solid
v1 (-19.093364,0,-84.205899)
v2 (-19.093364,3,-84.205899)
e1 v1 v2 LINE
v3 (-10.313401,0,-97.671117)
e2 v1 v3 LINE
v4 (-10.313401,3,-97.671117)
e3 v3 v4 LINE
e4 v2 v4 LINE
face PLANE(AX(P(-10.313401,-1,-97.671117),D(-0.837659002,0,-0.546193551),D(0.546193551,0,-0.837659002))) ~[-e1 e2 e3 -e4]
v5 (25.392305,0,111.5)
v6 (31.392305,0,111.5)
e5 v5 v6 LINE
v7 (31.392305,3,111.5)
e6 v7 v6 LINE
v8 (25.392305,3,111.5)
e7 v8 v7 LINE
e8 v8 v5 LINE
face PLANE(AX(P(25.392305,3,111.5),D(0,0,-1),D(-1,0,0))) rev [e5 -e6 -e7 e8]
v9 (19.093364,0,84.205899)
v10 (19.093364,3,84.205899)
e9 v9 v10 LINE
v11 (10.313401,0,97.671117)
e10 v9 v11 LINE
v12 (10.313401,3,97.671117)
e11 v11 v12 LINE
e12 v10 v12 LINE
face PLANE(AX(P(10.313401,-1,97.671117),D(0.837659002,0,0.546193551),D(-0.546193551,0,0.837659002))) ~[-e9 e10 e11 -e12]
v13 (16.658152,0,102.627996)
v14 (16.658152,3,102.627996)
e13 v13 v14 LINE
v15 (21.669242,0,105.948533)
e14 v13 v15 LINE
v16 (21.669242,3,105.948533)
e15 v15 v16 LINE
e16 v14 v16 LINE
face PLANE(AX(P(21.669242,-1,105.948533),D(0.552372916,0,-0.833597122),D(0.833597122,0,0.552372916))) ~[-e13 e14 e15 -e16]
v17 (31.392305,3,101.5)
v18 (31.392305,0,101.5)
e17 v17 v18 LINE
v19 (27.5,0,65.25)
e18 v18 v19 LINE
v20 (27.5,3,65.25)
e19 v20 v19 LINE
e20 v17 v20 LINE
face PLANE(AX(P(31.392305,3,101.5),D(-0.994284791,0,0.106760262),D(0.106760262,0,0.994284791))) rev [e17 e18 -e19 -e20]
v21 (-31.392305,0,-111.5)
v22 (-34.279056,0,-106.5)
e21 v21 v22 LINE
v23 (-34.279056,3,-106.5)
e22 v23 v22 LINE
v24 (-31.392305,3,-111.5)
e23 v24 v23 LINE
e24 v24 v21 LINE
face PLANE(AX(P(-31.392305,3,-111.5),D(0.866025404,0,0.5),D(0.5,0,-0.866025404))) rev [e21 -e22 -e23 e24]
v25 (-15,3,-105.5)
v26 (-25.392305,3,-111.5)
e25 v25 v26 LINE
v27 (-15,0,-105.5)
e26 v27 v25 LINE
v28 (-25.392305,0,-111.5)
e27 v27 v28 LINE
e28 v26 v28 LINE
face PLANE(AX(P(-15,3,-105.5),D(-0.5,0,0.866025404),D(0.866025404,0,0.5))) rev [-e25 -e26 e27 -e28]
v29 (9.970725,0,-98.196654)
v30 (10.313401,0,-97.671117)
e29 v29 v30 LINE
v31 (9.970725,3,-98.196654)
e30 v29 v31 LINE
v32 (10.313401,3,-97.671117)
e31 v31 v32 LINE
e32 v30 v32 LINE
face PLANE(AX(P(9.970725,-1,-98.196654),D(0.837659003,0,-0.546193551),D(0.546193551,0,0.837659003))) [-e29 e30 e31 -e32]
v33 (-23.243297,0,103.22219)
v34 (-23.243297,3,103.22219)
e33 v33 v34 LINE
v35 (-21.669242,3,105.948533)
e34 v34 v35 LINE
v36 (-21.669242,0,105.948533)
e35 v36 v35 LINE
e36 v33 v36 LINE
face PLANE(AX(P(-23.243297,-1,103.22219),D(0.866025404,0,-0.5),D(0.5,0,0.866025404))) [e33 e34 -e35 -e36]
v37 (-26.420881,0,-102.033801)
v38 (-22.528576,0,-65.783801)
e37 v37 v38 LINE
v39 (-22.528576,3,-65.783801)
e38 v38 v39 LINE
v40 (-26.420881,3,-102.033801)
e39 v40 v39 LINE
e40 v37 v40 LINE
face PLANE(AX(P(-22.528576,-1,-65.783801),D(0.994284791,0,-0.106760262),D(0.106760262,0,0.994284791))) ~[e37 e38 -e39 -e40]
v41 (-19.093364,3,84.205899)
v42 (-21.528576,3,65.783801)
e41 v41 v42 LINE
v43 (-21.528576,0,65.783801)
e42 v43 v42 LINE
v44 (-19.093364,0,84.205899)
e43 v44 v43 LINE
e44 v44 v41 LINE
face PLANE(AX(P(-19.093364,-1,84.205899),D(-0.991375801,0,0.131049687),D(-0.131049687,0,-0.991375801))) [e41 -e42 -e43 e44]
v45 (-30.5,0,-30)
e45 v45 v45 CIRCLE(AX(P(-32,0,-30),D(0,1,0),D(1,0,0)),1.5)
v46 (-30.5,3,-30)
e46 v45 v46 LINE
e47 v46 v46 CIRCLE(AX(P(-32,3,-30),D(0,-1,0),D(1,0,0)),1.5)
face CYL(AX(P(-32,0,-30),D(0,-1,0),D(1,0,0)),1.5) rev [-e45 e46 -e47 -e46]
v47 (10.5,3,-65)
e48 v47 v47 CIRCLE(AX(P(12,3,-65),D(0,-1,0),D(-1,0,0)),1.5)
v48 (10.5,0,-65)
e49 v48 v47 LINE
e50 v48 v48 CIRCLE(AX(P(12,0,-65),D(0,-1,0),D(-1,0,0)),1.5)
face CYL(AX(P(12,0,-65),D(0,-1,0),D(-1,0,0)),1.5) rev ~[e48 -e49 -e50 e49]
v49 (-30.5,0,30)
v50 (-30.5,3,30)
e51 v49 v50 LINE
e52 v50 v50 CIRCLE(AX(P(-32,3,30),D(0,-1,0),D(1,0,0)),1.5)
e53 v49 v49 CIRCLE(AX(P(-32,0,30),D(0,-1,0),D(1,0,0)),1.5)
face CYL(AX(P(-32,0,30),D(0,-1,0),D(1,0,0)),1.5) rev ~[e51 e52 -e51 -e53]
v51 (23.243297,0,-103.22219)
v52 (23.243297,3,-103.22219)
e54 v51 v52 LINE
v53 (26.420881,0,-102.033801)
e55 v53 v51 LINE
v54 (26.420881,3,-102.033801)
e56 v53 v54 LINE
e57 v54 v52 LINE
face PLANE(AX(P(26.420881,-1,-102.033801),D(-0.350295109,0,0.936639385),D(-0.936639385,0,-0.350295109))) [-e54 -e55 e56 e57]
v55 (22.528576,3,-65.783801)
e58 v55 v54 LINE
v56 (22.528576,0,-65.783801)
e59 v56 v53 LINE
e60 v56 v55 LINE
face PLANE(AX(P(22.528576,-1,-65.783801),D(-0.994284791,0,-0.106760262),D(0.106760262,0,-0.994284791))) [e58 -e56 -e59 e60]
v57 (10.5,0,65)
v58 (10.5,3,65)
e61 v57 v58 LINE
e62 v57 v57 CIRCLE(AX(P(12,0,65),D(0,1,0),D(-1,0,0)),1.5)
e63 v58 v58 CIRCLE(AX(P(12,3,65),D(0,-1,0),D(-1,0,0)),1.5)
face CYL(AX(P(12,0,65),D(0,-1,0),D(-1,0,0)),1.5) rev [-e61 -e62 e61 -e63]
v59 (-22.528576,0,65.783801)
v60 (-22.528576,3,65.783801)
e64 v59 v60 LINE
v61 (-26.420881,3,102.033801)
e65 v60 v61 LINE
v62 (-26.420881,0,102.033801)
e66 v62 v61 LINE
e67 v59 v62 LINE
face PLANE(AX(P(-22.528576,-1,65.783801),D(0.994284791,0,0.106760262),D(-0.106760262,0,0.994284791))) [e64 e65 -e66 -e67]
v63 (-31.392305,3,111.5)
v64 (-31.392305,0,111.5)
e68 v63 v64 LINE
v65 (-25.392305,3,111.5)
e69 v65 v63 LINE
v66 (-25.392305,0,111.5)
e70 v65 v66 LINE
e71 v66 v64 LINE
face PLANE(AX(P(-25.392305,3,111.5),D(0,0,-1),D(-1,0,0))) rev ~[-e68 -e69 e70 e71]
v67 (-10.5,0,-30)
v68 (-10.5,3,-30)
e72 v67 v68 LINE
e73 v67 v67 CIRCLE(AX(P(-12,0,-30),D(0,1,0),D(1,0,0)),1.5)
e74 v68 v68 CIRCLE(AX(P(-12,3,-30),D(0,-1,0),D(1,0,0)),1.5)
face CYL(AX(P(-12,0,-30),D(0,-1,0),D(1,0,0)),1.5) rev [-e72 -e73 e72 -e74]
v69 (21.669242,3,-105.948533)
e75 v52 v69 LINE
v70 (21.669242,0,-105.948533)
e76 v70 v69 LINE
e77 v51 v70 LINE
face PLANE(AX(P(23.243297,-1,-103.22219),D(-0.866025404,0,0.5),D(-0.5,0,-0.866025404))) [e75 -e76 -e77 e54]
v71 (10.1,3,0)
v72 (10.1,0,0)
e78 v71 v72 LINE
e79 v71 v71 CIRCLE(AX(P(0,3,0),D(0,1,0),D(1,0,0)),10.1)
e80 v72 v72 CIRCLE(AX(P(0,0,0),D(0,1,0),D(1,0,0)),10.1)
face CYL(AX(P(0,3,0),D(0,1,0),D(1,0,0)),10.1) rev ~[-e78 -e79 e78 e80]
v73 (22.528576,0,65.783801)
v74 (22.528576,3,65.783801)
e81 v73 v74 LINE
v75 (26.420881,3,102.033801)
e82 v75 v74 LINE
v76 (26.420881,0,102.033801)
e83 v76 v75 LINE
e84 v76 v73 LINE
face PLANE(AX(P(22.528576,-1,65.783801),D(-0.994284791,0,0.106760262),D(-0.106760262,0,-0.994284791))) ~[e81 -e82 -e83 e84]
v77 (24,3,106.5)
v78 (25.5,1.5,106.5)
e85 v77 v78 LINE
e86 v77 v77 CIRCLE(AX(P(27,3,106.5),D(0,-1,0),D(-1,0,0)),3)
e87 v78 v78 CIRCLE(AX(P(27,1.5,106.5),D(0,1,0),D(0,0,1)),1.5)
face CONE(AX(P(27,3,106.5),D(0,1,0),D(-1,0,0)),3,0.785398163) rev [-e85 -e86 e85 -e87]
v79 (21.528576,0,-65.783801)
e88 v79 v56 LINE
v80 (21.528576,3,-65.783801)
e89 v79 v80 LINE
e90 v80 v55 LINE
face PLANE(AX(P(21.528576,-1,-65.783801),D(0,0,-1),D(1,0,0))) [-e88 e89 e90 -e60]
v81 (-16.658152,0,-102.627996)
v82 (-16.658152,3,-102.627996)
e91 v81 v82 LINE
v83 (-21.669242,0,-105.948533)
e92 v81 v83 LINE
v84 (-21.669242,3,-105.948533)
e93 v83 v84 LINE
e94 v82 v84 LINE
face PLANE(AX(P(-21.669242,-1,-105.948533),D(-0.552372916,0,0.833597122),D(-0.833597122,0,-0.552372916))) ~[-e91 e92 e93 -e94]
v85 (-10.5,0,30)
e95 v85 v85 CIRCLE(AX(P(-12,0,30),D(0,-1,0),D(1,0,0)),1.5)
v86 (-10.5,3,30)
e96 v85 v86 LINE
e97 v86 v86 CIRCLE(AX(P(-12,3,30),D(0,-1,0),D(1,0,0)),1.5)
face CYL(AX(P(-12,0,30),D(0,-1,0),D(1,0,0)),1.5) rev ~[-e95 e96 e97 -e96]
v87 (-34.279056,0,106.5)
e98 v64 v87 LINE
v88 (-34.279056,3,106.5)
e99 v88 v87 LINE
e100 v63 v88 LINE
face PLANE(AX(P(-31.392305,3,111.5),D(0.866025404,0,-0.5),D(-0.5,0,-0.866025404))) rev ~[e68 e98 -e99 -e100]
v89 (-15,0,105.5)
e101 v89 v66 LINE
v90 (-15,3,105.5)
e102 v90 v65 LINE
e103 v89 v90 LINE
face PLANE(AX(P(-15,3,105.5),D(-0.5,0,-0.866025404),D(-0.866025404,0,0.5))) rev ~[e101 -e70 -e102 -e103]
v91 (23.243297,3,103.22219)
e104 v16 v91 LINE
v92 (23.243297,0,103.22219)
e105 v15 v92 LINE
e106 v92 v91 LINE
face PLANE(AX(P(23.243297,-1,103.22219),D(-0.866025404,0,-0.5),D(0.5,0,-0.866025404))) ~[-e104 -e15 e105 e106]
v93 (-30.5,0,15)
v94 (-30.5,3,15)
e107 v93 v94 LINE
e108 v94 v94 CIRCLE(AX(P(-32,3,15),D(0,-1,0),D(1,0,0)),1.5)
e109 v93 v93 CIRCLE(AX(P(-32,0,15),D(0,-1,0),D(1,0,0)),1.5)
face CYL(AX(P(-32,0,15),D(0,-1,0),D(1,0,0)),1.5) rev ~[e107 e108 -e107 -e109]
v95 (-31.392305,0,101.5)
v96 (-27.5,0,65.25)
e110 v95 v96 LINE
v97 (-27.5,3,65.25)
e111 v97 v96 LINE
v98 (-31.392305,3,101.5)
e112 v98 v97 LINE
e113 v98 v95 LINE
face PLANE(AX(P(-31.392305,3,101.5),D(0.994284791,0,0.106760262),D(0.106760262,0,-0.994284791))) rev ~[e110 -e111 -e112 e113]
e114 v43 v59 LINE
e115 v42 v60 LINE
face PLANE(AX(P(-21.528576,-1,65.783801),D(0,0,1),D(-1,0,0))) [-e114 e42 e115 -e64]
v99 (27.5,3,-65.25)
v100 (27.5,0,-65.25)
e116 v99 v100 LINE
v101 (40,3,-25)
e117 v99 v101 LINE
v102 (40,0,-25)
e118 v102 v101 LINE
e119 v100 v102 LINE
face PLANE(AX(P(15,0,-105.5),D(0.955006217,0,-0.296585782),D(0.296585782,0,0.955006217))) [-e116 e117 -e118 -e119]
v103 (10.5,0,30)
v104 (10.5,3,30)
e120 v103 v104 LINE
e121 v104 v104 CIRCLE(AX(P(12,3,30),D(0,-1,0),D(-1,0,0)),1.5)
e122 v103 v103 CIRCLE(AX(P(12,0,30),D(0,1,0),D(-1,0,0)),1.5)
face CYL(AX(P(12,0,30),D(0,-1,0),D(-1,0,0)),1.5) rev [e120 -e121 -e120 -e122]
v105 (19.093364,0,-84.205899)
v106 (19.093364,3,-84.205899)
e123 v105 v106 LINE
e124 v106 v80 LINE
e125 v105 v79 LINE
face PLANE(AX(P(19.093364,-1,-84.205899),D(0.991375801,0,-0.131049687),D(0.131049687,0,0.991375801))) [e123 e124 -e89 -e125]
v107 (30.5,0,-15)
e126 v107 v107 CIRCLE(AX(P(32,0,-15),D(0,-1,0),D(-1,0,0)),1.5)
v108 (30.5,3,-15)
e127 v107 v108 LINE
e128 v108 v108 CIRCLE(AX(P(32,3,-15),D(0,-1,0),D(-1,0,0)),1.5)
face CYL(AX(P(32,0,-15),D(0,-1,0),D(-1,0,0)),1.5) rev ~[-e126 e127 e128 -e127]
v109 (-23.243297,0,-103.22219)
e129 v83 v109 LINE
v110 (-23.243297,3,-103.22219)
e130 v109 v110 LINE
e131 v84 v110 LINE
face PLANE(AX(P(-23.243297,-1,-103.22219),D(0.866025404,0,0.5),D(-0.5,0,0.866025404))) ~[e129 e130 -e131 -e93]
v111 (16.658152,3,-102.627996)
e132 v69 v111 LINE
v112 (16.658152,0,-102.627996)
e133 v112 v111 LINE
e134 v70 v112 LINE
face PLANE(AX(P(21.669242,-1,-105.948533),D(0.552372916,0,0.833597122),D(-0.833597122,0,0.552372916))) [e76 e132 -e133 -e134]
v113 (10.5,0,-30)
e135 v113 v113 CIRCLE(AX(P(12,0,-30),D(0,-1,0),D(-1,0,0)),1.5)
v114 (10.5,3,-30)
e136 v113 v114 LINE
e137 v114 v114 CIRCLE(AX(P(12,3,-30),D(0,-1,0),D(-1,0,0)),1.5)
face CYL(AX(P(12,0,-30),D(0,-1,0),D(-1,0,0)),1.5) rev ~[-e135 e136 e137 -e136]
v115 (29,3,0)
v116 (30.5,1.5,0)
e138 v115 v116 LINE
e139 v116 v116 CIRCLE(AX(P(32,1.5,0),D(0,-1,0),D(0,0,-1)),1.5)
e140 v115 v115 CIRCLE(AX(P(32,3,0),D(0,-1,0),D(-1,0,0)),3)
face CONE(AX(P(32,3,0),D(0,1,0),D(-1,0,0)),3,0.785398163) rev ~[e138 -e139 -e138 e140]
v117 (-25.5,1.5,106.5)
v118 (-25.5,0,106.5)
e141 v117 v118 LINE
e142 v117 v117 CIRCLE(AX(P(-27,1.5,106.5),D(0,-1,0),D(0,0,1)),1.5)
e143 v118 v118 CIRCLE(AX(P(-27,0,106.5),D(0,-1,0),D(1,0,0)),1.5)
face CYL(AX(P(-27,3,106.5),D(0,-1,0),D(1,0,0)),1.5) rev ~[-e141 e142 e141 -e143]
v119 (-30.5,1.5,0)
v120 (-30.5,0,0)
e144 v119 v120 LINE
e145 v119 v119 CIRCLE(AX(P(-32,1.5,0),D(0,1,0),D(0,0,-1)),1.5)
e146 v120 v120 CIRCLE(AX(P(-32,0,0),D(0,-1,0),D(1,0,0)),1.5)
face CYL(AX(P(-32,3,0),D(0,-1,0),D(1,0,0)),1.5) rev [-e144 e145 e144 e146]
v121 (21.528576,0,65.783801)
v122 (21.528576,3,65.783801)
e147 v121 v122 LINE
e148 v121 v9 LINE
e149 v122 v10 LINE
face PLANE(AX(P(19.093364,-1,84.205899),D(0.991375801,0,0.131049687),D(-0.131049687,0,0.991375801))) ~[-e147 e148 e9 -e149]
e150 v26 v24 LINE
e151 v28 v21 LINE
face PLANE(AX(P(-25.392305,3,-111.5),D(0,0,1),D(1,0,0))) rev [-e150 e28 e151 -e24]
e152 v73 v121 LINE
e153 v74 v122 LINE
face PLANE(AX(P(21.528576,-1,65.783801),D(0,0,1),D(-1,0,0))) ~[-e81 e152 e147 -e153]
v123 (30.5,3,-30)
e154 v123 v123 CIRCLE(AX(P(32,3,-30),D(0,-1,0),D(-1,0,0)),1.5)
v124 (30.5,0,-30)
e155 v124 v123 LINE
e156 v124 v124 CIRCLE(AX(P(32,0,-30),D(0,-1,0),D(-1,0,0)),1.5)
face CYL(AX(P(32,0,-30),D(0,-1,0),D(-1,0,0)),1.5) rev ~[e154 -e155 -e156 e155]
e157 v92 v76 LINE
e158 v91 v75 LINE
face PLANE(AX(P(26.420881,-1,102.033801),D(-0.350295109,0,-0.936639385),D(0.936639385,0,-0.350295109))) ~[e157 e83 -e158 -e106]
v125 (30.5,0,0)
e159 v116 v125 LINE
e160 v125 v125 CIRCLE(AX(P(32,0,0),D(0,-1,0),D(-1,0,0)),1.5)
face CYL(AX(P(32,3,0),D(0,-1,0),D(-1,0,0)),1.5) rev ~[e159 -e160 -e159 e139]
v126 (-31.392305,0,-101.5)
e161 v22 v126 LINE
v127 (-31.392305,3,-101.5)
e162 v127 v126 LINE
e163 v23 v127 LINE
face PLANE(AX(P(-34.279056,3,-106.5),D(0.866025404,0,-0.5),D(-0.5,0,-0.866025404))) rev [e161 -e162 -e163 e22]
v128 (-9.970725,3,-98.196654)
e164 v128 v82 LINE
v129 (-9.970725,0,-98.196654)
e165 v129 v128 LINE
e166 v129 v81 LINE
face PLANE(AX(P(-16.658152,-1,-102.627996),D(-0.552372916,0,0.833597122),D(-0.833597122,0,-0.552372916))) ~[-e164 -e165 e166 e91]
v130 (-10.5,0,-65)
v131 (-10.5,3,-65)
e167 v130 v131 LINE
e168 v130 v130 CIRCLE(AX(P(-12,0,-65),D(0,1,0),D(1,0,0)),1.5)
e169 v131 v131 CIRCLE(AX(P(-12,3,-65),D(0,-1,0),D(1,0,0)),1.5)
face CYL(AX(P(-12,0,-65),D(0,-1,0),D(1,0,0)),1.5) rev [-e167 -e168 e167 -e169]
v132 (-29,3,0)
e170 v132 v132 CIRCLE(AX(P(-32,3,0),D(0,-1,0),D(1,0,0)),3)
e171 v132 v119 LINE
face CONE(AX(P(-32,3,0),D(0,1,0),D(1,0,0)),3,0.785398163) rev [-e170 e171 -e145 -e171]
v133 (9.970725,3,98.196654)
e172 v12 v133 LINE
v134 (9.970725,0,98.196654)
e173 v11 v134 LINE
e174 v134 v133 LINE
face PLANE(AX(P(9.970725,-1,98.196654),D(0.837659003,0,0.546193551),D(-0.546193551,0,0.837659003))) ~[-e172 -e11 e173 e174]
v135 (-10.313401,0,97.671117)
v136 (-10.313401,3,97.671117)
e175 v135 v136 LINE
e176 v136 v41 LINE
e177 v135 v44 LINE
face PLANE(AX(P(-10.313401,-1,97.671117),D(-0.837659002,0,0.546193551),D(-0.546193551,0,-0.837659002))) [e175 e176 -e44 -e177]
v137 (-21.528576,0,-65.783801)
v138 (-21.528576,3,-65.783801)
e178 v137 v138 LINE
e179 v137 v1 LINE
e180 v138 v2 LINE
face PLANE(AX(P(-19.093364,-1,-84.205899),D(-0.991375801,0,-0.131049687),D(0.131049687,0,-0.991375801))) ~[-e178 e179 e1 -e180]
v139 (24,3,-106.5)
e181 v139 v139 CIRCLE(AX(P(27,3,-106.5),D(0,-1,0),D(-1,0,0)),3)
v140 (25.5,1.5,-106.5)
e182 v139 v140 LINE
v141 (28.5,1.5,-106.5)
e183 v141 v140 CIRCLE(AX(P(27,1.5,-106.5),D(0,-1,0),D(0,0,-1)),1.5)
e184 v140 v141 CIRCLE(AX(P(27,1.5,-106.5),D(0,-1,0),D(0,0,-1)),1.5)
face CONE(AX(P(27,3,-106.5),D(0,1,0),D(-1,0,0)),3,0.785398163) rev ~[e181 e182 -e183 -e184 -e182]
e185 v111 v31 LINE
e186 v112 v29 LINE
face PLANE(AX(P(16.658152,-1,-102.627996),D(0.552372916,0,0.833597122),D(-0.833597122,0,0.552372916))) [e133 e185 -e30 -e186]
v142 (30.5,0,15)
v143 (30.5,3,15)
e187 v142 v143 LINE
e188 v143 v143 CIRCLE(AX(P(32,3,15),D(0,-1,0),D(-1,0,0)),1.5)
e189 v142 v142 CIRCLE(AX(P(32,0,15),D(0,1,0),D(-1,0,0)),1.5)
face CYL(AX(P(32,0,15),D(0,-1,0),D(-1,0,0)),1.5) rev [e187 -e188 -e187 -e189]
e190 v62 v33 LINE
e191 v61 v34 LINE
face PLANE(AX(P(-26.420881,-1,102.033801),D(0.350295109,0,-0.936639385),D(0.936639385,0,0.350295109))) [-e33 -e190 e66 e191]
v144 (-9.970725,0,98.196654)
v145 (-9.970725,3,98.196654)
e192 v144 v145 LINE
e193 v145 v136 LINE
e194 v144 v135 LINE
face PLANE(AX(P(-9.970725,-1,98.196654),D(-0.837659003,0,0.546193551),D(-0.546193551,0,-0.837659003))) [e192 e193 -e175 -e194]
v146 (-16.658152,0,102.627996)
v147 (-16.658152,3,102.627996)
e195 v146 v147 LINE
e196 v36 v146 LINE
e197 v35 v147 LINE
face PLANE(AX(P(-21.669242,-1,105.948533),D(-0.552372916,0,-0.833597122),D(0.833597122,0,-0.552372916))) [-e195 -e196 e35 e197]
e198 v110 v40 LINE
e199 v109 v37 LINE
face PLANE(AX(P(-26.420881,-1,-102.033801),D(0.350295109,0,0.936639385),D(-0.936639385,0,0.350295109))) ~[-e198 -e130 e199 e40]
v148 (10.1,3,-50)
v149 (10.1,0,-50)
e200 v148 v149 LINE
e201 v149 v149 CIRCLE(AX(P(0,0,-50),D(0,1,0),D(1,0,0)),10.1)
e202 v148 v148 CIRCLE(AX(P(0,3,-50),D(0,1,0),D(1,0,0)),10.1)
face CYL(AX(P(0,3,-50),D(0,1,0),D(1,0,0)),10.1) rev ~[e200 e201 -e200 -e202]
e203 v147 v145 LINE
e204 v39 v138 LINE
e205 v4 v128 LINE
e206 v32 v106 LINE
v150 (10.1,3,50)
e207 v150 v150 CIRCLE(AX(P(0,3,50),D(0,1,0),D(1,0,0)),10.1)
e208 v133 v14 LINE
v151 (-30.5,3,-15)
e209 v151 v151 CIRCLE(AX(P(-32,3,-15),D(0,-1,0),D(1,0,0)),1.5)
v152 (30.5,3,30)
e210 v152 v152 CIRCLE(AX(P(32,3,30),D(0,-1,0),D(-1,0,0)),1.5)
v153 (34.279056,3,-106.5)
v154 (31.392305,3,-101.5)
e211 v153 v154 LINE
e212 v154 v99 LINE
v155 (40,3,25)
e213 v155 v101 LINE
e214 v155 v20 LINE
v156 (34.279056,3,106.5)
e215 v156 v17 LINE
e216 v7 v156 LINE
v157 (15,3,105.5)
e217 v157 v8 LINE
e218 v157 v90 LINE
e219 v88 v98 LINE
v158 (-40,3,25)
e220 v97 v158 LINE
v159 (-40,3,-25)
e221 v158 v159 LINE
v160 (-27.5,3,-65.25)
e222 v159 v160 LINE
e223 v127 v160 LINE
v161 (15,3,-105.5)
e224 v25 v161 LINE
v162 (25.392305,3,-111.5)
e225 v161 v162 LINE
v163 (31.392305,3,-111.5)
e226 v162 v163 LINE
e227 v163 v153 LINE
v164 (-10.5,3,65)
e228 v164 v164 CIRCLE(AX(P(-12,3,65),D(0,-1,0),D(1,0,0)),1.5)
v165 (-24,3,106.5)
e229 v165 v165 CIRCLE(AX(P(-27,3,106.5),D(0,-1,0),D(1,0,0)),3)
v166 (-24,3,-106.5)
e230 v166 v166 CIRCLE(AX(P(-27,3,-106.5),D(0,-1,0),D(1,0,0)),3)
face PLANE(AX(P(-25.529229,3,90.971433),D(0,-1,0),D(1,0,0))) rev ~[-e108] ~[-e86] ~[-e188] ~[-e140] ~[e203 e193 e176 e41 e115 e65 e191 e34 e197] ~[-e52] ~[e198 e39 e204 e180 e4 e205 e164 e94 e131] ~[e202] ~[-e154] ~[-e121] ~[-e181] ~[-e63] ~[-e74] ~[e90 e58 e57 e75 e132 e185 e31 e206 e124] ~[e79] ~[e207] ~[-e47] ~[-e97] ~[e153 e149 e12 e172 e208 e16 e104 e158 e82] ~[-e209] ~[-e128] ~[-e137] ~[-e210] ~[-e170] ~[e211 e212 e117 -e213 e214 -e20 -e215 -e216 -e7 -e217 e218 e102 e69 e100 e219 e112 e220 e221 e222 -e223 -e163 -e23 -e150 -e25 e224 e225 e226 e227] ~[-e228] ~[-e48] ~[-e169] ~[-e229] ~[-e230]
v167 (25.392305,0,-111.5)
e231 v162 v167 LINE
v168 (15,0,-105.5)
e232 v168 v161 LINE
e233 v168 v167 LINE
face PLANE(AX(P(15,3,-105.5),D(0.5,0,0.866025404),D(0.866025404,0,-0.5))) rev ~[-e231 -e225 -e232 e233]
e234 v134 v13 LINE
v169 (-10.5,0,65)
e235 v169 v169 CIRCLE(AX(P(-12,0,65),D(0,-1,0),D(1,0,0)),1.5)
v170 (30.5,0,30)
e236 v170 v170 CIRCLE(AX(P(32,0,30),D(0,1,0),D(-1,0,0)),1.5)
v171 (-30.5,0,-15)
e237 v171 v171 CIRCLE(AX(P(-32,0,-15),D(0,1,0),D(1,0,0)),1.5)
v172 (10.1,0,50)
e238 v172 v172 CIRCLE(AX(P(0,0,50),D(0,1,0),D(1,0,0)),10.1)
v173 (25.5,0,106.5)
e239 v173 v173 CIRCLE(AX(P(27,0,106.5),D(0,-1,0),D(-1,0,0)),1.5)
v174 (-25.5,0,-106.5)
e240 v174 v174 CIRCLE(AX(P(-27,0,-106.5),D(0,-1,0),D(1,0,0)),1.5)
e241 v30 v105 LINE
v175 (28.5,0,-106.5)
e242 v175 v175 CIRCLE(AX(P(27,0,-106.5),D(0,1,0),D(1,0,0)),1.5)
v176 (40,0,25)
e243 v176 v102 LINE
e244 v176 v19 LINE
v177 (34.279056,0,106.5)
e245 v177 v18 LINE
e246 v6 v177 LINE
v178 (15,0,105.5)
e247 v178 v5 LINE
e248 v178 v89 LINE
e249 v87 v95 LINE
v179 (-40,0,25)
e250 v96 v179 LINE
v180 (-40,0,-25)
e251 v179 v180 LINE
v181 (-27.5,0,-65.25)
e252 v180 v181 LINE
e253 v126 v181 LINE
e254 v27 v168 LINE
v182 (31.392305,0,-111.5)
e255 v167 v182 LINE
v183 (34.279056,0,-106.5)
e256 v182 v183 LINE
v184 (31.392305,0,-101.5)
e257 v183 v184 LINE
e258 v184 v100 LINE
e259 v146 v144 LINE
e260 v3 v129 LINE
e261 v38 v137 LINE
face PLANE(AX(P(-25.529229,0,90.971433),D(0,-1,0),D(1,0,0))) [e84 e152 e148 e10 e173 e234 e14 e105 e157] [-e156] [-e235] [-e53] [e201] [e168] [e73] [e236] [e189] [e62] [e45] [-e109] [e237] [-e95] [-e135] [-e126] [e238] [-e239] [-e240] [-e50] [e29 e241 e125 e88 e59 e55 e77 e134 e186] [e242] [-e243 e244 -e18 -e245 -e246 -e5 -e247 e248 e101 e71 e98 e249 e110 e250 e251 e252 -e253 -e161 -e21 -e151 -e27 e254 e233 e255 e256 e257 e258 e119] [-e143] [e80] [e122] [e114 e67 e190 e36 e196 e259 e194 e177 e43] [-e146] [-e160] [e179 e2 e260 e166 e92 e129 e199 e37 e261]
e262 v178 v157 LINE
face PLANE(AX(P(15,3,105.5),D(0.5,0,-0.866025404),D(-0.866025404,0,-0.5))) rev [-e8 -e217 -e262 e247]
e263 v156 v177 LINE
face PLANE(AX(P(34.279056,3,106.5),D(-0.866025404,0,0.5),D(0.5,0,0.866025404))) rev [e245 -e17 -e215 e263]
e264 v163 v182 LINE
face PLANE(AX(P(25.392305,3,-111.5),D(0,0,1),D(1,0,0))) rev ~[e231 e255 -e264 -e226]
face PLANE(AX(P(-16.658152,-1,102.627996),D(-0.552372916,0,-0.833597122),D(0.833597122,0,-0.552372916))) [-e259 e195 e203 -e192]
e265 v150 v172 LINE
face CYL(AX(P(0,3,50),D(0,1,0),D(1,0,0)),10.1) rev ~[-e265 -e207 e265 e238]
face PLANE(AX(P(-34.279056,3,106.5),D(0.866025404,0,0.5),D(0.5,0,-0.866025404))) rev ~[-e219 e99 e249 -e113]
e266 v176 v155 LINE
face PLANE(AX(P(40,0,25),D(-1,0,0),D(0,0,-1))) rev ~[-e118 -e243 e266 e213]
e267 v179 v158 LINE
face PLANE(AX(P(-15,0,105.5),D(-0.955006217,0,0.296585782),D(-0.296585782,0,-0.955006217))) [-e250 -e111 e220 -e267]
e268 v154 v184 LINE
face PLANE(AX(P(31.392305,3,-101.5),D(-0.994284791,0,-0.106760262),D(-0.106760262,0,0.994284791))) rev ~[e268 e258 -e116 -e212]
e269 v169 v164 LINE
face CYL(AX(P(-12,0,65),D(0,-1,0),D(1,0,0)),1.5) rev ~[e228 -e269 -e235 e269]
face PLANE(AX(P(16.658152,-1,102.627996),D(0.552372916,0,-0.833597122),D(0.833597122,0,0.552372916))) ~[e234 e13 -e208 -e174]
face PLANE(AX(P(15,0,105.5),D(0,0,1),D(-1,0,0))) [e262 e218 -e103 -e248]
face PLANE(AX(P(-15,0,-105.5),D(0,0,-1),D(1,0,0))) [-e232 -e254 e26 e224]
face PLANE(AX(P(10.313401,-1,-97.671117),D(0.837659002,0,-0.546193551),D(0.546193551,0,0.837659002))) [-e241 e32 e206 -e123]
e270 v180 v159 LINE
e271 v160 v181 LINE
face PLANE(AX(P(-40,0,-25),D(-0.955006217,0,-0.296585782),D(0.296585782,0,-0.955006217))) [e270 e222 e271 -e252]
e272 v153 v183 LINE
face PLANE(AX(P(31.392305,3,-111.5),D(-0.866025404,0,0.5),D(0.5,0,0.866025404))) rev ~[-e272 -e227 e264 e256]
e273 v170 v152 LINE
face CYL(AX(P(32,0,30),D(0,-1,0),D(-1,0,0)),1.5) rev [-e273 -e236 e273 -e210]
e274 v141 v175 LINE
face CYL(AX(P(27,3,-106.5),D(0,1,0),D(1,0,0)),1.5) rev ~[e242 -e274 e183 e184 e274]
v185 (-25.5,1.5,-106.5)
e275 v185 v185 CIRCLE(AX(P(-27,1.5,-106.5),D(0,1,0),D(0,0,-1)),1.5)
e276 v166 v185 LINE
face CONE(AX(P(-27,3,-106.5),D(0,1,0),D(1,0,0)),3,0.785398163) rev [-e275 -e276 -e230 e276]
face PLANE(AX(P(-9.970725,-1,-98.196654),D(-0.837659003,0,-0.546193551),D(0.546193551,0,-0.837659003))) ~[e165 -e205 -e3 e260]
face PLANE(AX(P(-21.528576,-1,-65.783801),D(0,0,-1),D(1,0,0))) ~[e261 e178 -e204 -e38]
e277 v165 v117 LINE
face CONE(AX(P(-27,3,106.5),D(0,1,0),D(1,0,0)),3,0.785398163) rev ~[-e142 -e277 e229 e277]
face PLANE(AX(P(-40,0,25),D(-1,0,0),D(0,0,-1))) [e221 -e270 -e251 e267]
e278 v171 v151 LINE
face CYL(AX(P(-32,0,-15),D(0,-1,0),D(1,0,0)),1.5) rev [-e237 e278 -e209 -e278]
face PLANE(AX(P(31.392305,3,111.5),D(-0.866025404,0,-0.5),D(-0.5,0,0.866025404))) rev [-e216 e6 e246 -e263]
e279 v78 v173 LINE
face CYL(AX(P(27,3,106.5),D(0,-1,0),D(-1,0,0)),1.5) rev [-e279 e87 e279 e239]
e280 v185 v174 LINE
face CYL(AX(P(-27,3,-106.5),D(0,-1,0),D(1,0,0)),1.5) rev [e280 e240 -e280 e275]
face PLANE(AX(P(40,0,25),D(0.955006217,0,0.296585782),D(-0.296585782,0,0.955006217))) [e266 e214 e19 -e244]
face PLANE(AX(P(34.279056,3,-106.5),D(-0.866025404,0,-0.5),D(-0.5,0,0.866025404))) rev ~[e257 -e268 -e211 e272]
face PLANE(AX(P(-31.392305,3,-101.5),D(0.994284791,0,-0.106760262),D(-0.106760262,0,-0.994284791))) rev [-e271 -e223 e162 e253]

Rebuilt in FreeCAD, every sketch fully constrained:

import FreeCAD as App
import Part
import Sketcher
from FreeCAD import Vector
Q = App.Units.Quantity

doc = App.newDocument("Part")
body = doc.addObject("PartDesign::Body", "Body")

sketch1 = body.newObject("Sketcher::SketchObject", "Sketch")
sketch1.AttachmentSupport = (doc.getObject("XZ_Plane"), [""])
sketch1.MapMode = "FlatFace"
sketch1.addGeometry(Part.LineSegment(Vector(-40, 25, 0), Vector(-15, 105.5, 0)), False)
sketch1.addGeometry(Part.LineSegment(Vector(-15, 105.5, 0), Vector(15, 105.5, 0)), False)
sketch1.addGeometry(Part.LineSegment(Vector(15, 105.5, 0), Vector(40, 25, 0)), False)
sketch1.addGeometry(Part.LineSegment(Vector(40, 25, 0), Vector(40, -25, 0)), False)
sketch1.addGeometry(Part.LineSegment(Vector(40, -25, 0), Vector(15, -105.5, 0)), False)
sketch1.addGeometry(Part.LineSegment(Vector(15, -105.5, 0), Vector(-15, -105.5, 0)), False)
sketch1.addGeometry(Part.LineSegment(Vector(-15, -105.5, 0), Vector(-40, -25, 0)), False)
sketch1.addGeometry(Part.LineSegment(Vector(-40, -25, 0), Vector(-40, 25, 0)), False)
sketch1.addConstraint(Sketcher.Constraint("Coincident", 0, 2, 1, 1))
sketch1.addConstraint(Sketcher.Constraint("Coincident", 1, 2, 2, 1))
sketch1.addConstraint(Sketcher.Constraint("Coincident", 2, 2, 3, 1))
sketch1.addConstraint(Sketcher.Constraint("Coincident", 3, 2, 4, 1))
sketch1.addConstraint(Sketcher.Constraint("Coincident", 4, 2, 5, 1))
sketch1.addConstraint(Sketcher.Constraint("Coincident", 5, 2, 6, 1))
sketch1.addConstraint(Sketcher.Constraint("Coincident", 6, 2, 7, 1))
sketch1.addConstraint(Sketcher.Constraint("Coincident", 7, 2, 0, 1))
sketch1.addConstraint(Sketcher.Constraint("Horizontal", 1))
sketch1.addConstraint(Sketcher.Constraint("Vertical", 3))
sketch1.addConstraint(Sketcher.Constraint("Horizontal", 5))
sketch1.addConstraint(Sketcher.Constraint("Vertical", 7))
sketch1.addConstraint(Sketcher.Constraint("Symmetric", 0, 2, 4, 2, -1, 1))
sketch1.addConstraint(Sketcher.Constraint("Symmetric", 2, 2, 6, 2, -1, 1))
sketch1.addConstraint(Sketcher.Constraint("Parallel", 0, 4))
sketch1.addConstraint(Sketcher.Constraint("Parallel", 2, 6))
sketch1.addConstraint(Sketcher.Constraint("Horizontal", 3, 2, 6, 2))
sketch1.addConstraint(Sketcher.Constraint("Vertical", 1, 2, 4, 2))
sketch1.addConstraint(Sketcher.Constraint("DistanceX", 1, 1, 1, 2, 30.0))
sketch1.addConstraint(Sketcher.Constraint("DistanceY", 3, 2, 3, 1, 50.0))
sketch1.addConstraint(Sketcher.Constraint("DistanceX", -1, 1, 2, 2, 40.0))
sketch1.addConstraint(Sketcher.Constraint("DistanceY", 4, 2, 1, 2, 211.0))
pad1 = body.newObject("PartDesign::Pad", "Pad")
pad1.Profile = sketch1
pad1.Length = 3
pad1.Reversed = True

sketch2 = body.newObject("Sketcher::SketchObject", "Sketch001")
sketch2.AttachmentSupport = (doc.getObject("XZ_Plane"), [""])
sketch2.MapMode = "FlatFace"
sketch2.AttachmentOffset = App.Placement(Vector(0, 0, -3), App.Rotation())
sketch2.addGeometry(Part.LineSegment(Vector(25.392305, -111.5, 0), Vector(15, -105.5, 0)), False)
sketch2.addGeometry(Part.LineSegment(Vector(15, -105.5, 0), Vector(27.5, -65.25, 0)), False)
sketch2.addGeometry(Part.LineSegment(Vector(27.5, -65.25, 0), Vector(31.392305, -101.5, 0)), False)
sketch2.addGeometry(Part.LineSegment(Vector(31.392305, -101.5, 0), Vector(34.279056, -106.5, 0)), False)
sketch2.addGeometry(Part.LineSegment(Vector(34.279056, -106.5, 0), Vector(31.392305, -111.5, 0)), False)
sketch2.addGeometry(Part.LineSegment(Vector(31.392305, -111.5, 0), Vector(25.392305, -111.5, 0)), False)
sketch2.addConstraint(Sketcher.Constraint("Coincident", 0, 2, 1, 1))
sketch2.addConstraint(Sketcher.Constraint("Coincident", 1, 2, 2, 1))
sketch2.addConstraint(Sketcher.Constraint("Coincident", 2, 2, 3, 1))
sketch2.addConstraint(Sketcher.Constraint("Coincident", 3, 2, 4, 1))
sketch2.addConstraint(Sketcher.Constraint("Coincident", 4, 2, 5, 1))
sketch2.addConstraint(Sketcher.Constraint("Coincident", 5, 2, 0, 1))
sketch2.addConstraint(Sketcher.Constraint("Horizontal", 5))
sketch2.addConstraint(Sketcher.Constraint("Perpendicular", 0, 4))
sketch2.addConstraint(Sketcher.Constraint("Vertical", 2, 2, 4, 2))
sketch2.addConstraint(Sketcher.Constraint("Equal", 3, 4))
sketch2.addConstraint(Sketcher.Constraint("DistanceX", 5, 2, 5, 1, 6.0))
sketch2.addConstraint(Sketcher.Constraint("Angle", 0, Q("150 deg")))
sketch2.addConstraint(Sketcher.Constraint("Distance", 0, 12.0))
sketch2.addConstraint(Sketcher.Constraint("DistanceX", -1, 1, 0, 2, 15.0))
sketch2.addConstraint(Sketcher.Constraint("DistanceY", 0, 2, 2, 2, 4.0))
sketch2.addConstraint(Sketcher.Constraint("DistanceY", 0, 2, -1, 1, 105.5))
sketch2.addConstraint(Sketcher.Constraint("DistanceX", -1, 1, 1, 2, 27.5))
sketch2.addConstraint(Sketcher.Constraint("DistanceY", 1, 2, -1, 1, 65.25))
pad2 = body.newObject("PartDesign::Pad", "Pad001")
pad2.Profile = sketch2
pad2.Length = 3

sketch3 = body.newObject("Sketcher::SketchObject", "Sketch002")
sketch3.AttachmentSupport = (doc.getObject("XZ_Plane"), [""])
sketch3.MapMode = "FlatFace"
sketch3.AttachmentOffset = App.Placement(Vector(0, 0, -3), App.Rotation())
sketch3.addGeometry(Part.Circle(Vector(27, -106.5, 0), Vector(0, 0, 1), 1.5), False)
sketch3.addConstraint(Sketcher.Constraint("Diameter", 0, 3.0))
sketch3.addConstraint(Sketcher.Constraint("DistanceX", -1, 1, 0, 3, 27.0))
sketch3.addConstraint(Sketcher.Constraint("DistanceY", 0, 3, -1, 1, 106.5))
pocket1 = body.newObject("PartDesign::Pocket", "Pocket")
pocket1.Profile = sketch3
pocket1.Length = 3
pocket1.Reversed = True

sketch4 = body.newObject("Sketcher::SketchObject", "Sketch003")
sketch4.AttachmentSupport = (doc.getObject("XZ_Plane"), [""])
sketch4.MapMode = "FlatFace"
sketch4.AttachmentOffset = App.Placement(Vector(0, 0, 1), App.Rotation())
sketch4.addGeometry(Part.LineSegment(Vector(22.528576, -65.783801, 0), Vector(26.420881, -102.033801, 0)), False)
sketch4.addGeometry(Part.LineSegment(Vector(26.420881, -102.033801, 0), Vector(23.243297, -103.22219, 0)), False)
sketch4.addGeometry(Part.LineSegment(Vector(23.243297, -103.22219, 0), Vector(21.669242, -105.948533, 0)), False)
sketch4.addGeometry(Part.LineSegment(Vector(21.669242, -105.948533, 0), Vector(16.658152, -102.627996, 0)), False)
sketch4.addGeometry(Part.LineSegment(Vector(16.658152, -102.627996, 0), Vector(9.970725, -98.196654, 0)), False)
sketch4.addGeometry(Part.LineSegment(Vector(9.970725, -98.196654, 0), Vector(10.313401, -97.671117, 0)), False)
sketch4.addGeometry(Part.LineSegment(Vector(10.313401, -97.671117, 0), Vector(19.093364, -84.205899, 0)), False)
sketch4.addGeometry(Part.LineSegment(Vector(19.093364, -84.205899, 0), Vector(21.528576, -65.783801, 0)), False)
sketch4.addGeometry(Part.LineSegment(Vector(21.528576, -65.783801, 0), Vector(22.528576, -65.783801, 0)), False)
sketch4.addConstraint(Sketcher.Constraint("Coincident", 0, 2, 1, 1))
sketch4.addConstraint(Sketcher.Constraint("Coincident", 1, 2, 2, 1))
sketch4.addConstraint(Sketcher.Constraint("Coincident", 2, 2, 3, 1))
sketch4.addConstraint(Sketcher.Constraint("Coincident", 3, 2, 4, 1))
sketch4.addConstraint(Sketcher.Constraint("Coincident", 4, 2, 5, 1))
sketch4.addConstraint(Sketcher.Constraint("Coincident", 5, 2, 6, 1))
sketch4.addConstraint(Sketcher.Constraint("Coincident", 6, 2, 7, 1))
sketch4.addConstraint(Sketcher.Constraint("Coincident", 7, 2, 8, 1))
sketch4.addConstraint(Sketcher.Constraint("Coincident", 8, 2, 0, 1))
sketch4.addConstraint(Sketcher.Constraint("Horizontal", 8))
sketch4.addConstraint(Sketcher.Constraint("Parallel", 3, 4))
sketch4.addConstraint(Sketcher.Constraint("Parallel", 5, 6))
sketch4.addConstraint(Sketcher.Constraint("DistanceX", 8, 1, 8, 2, 1.0))
sketch4.addConstraint(Sketcher.Constraint("Angle", 2, Q("-120 deg")))
sketch4.addConstraint(Sketcher.Constraint("DistanceY", 0, 2, 7, 2, 36.25))
sketch4.addConstraint(Sketcher.Constraint("DistanceY", 0, 2, -1, 1, 102.033801))
sketch4.addConstraint(Sketcher.Constraint("DistanceX", -1, 1, 5, 2, 10.313401))
sketch4.addConstraint(Sketcher.Constraint("DistanceY", 6, 2, -1, 1, 84.205899))
sketch4.addConstraint(Sketcher.Constraint("Distance", 2, 3.14811))
sketch4.addConstraint(Sketcher.Constraint("Distance", 5, 0.627388))
sketch4.addConstraint(Sketcher.Constraint("Distance", 6, 16.074821))
sketch4.addConstraint(Sketcher.Constraint("DistanceX", -1, 1, 0, 2, 26.420881))
sketch4.addConstraint(Sketcher.Constraint("DistanceY", 1, 2, -1, 1, 103.22219))
sketch4.addConstraint(Sketcher.Constraint("DistanceX", 2, 2, 0, 2, 4.751638))
sketch4.addConstraint(Sketcher.Constraint("DistanceX", 3, 2, 2, 2, 5.01109))
sketch4.addConstraint(Sketcher.Constraint("DistanceY", 3, 2, 4, 2, 4.431342))
sketch4.addConstraint(Sketcher.Constraint("DistanceX", 6, 2, 7, 2, 2.435212))
pocket2 = body.newObject("PartDesign::Pocket", "Pocket001")
pocket2.Profile = sketch4
pocket2.Length = 5

sketch5 = body.newObject("Sketcher::SketchObject", "Sketch004")
sketch5.AttachmentSupport = (doc.getObject("XZ_Plane"), [""])
sketch5.MapMode = "FlatFace"
sketch5.AttachmentOffset = App.Placement(Vector(0, 0, -3), App.Rotation())
sketch5.addGeometry(Part.Circle(Vector(27, -106.5, 0), Vector(0, 0, 1), 1.5), False)
sketch5.addGeometry(Part.Circle(Vector(32, 0, 0), Vector(0, 0, 1), 1.5), False)
sketch5.addConstraint(Sketcher.Constraint("Equal", 0, 1))
sketch5.addConstraint(Sketcher.Constraint("PointOnObject", 1, 3, -1))
sketch5.addConstraint(Sketcher.Constraint("Diameter", 0, 3.0))
sketch5.addConstraint(Sketcher.Constraint("DistanceX", -1, 1, 0, 3, 27.0))
sketch5.addConstraint(Sketcher.Constraint("DistanceX", -1, 1, 1, 3, 32.0))
sketch5.addConstraint(Sketcher.Constraint("DistanceY", 0, 3, -1, 1, 106.5))
doc.recompute()
hole = body.newObject("PartDesign::Hole", "Hole")
hole.Profile = sketch5
hole.ThreadType = "None"
hole.Diameter = 3
hole.DepthType = "ThroughAll"
hole.HoleCutType = "Countersink"
hole.HoleCutDiameter = 6
hole.HoleCutCountersinkAngle = 90
hole.Reversed = True
doc.recompute()

mirrored = body.newObject("PartDesign::Mirrored", "Mirrored")
mirrored.Originals = [hole]
mirrored.MirrorPlane = (doc.getObject("YZ_Plane"), [""])
body.Tip = mirrored
doc.recompute()

mirrored2 = body.newObject("PartDesign::Mirrored", "Mirrored001")
mirrored2.Originals = [pad2, pocket2, hole]
mirrored2.MirrorPlane = (doc.getObject("YZ_Plane"), [""])
body.Tip = mirrored2
doc.recompute()

mirrored3 = body.newObject("PartDesign::Mirrored", "Mirrored002")
mirrored3.Originals = [pad2, pocket2, hole]
mirrored3.MirrorPlane = (doc.getObject("XY_Plane"), [""])
body.Tip = mirrored3

sketch6 = body.newObject("Sketcher::SketchObject", "Sketch005")
sketch6.AttachmentSupport = (doc.getObject("XZ_Plane"), [""])
sketch6.MapMode = "FlatFace"
sketch6.AttachmentOffset = App.Placement(Vector(0, 0, -3), App.Rotation())
sketch6.addGeometry(Part.LineSegment(Vector(-25.392305, 111.5, 0), Vector(-15, 105.5, 0)), False)
sketch6.addGeometry(Part.LineSegment(Vector(-15, 105.5, 0), Vector(-27.5, 65.25, 0)), False)
sketch6.addGeometry(Part.LineSegment(Vector(-27.5, 65.25, 0), Vector(-31.392305, 101.5, 0)), False)
sketch6.addGeometry(Part.LineSegment(Vector(-31.392305, 101.5, 0), Vector(-34.279056, 106.5, 0)), False)
sketch6.addGeometry(Part.LineSegment(Vector(-34.279056, 106.5, 0), Vector(-31.392305, 111.5, 0)), False)
sketch6.addGeometry(Part.LineSegment(Vector(-31.392305, 111.5, 0), Vector(-25.392305, 111.5, 0)), False)
sketch6.addConstraint(Sketcher.Constraint("Coincident", 0, 2, 1, 1))
sketch6.addConstraint(Sketcher.Constraint("Coincident", 1, 2, 2, 1))
sketch6.addConstraint(Sketcher.Constraint("Coincident", 2, 2, 3, 1))
sketch6.addConstraint(Sketcher.Constraint("Coincident", 3, 2, 4, 1))
sketch6.addConstraint(Sketcher.Constraint("Coincident", 4, 2, 5, 1))
sketch6.addConstraint(Sketcher.Constraint("Coincident", 5, 2, 0, 1))
sketch6.addConstraint(Sketcher.Constraint("Horizontal", 5))
sketch6.addConstraint(Sketcher.Constraint("Perpendicular", 0, 4))
sketch6.addConstraint(Sketcher.Constraint("Vertical", 2, 2, 4, 2))
sketch6.addConstraint(Sketcher.Constraint("Equal", 3, 4))
sketch6.addConstraint(Sketcher.Constraint("DistanceX", 5, 1, 5, 2, 6.0))
sketch6.addConstraint(Sketcher.Constraint("Angle", 0, Q("-30 deg")))
sketch6.addConstraint(Sketcher.Constraint("Distance", 0, 12.0))
sketch6.addConstraint(Sketcher.Constraint("DistanceX", 0, 2, -1, 1, 15.0))
sketch6.addConstraint(Sketcher.Constraint("DistanceY", 2, 2, 0, 2, 4.0))
sketch6.addConstraint(Sketcher.Constraint("DistanceY", -1, 1, 0, 2, 105.5))
sketch6.addConstraint(Sketcher.Constraint("DistanceX", 1, 2, -1, 1, 27.5))
sketch6.addConstraint(Sketcher.Constraint("DistanceY", -1, 1, 1, 2, 65.25))
pad3 = body.newObject("PartDesign::Pad", "Pad002")
pad3.Profile = sketch6
pad3.Length = 3

sketch7 = body.newObject("Sketcher::SketchObject", "Sketch006")
sketch7.AttachmentSupport = (doc.getObject("XZ_Plane"), [""])
sketch7.MapMode = "FlatFace"
sketch7.AttachmentOffset = App.Placement(Vector(0, 0, 1), App.Rotation())
sketch7.addGeometry(Part.LineSegment(Vector(-22.528576, 65.783801, 0), Vector(-26.420881, 102.033801, 0)), False)
sketch7.addGeometry(Part.LineSegment(Vector(-26.420881, 102.033801, 0), Vector(-23.243297, 103.22219, 0)), False)
sketch7.addGeometry(Part.LineSegment(Vector(-23.243297, 103.22219, 0), Vector(-21.669242, 105.948533, 0)), False)
sketch7.addGeometry(Part.LineSegment(Vector(-21.669242, 105.948533, 0), Vector(-16.658152, 102.627996, 0)), False)
sketch7.addGeometry(Part.LineSegment(Vector(-16.658152, 102.627996, 0), Vector(-9.970725, 98.196654, 0)), False)
sketch7.addGeometry(Part.LineSegment(Vector(-9.970725, 98.196654, 0), Vector(-10.313401, 97.671117, 0)), False)
sketch7.addGeometry(Part.LineSegment(Vector(-10.313401, 97.671117, 0), Vector(-19.093364, 84.205899, 0)), False)
sketch7.addGeometry(Part.LineSegment(Vector(-19.093364, 84.205899, 0), Vector(-21.528576, 65.783801, 0)), False)
sketch7.addGeometry(Part.LineSegment(Vector(-21.528576, 65.783801, 0), Vector(-22.528576, 65.783801, 0)), False)
sketch7.addConstraint(Sketcher.Constraint("Coincident", 0, 2, 1, 1))
sketch7.addConstraint(Sketcher.Constraint("Coincident", 1, 2, 2, 1))
sketch7.addConstraint(Sketcher.Constraint("Coincident", 2, 2, 3, 1))
sketch7.addConstraint(Sketcher.Constraint("Coincident", 3, 2, 4, 1))
sketch7.addConstraint(Sketcher.Constraint("Coincident", 4, 2, 5, 1))
sketch7.addConstraint(Sketcher.Constraint("Coincident", 5, 2, 6, 1))
sketch7.addConstraint(Sketcher.Constraint("Coincident", 6, 2, 7, 1))
sketch7.addConstraint(Sketcher.Constraint("Coincident", 7, 2, 8, 1))
sketch7.addConstraint(Sketcher.Constraint("Coincident", 8, 2, 0, 1))
sketch7.addConstraint(Sketcher.Constraint("Horizontal", 8))
sketch7.addConstraint(Sketcher.Constraint("Parallel", 3, 4))
sketch7.addConstraint(Sketcher.Constraint("Parallel", 5, 6))
sketch7.addConstraint(Sketcher.Constraint("DistanceX", 8, 2, 8, 1, 1.0))
sketch7.addConstraint(Sketcher.Constraint("Angle", 2, Q("60 deg")))
sketch7.addConstraint(Sketcher.Constraint("DistanceY", 7, 2, 0, 2, 36.25))
sketch7.addConstraint(Sketcher.Constraint("DistanceY", -1, 1, 0, 2, 102.033801))
sketch7.addConstraint(Sketcher.Constraint("DistanceX", 5, 2, -1, 1, 10.313401))
sketch7.addConstraint(Sketcher.Constraint("DistanceY", -1, 1, 6, 2, 84.205899))
sketch7.addConstraint(Sketcher.Constraint("Distance", 2, 3.14811))
sketch7.addConstraint(Sketcher.Constraint("Distance", 5, 0.627388))
sketch7.addConstraint(Sketcher.Constraint("Distance", 6, 16.074821))
sketch7.addConstraint(Sketcher.Constraint("DistanceX", 0, 2, -1, 1, 26.420881))
sketch7.addConstraint(Sketcher.Constraint("DistanceY", -1, 1, 1, 2, 103.22219))
sketch7.addConstraint(Sketcher.Constraint("DistanceX", 0, 2, 2, 2, 4.751638))
sketch7.addConstraint(Sketcher.Constraint("DistanceX", 2, 2, 3, 2, 5.01109))
sketch7.addConstraint(Sketcher.Constraint("DistanceY", 4, 2, 3, 2, 4.431342))
sketch7.addConstraint(Sketcher.Constraint("DistanceX", 7, 2, 6, 2, 2.435212))
pocket3 = body.newObject("PartDesign::Pocket", "Pocket002")
pocket3.Profile = sketch7
pocket3.Length = 5

sketch8 = body.newObject("Sketcher::SketchObject", "Sketch007")
sketch8.AttachmentSupport = (doc.getObject("XZ_Plane"), [""])
sketch8.MapMode = "FlatFace"
sketch8.AttachmentOffset = App.Placement(Vector(0, 0, -3), App.Rotation())
sketch8.addGeometry(Part.Circle(Vector(-27, 106.5, 0), Vector(0, 0, 1), 1.5), False)
sketch8.addGeometry(Part.Circle(Vector(-32, 0, 0), Vector(0, 0, 1), 1.5), False)
sketch8.addConstraint(Sketcher.Constraint("Equal", 0, 1))
sketch8.addConstraint(Sketcher.Constraint("PointOnObject", 1, 3, -1))
sketch8.addConstraint(Sketcher.Constraint("Diameter", 0, 3.0))
sketch8.addConstraint(Sketcher.Constraint("DistanceX", 0, 3, -1, 1, 27.0))
sketch8.addConstraint(Sketcher.Constraint("DistanceX", 1, 3, -1, 1, 32.0))
sketch8.addConstraint(Sketcher.Constraint("DistanceY", -1, 1, 0, 3, 106.5))
doc.recompute()
hole2 = body.newObject("PartDesign::Hole", "Hole001")
hole2.Profile = sketch8
hole2.ThreadType = "None"
hole2.Diameter = 3
hole2.DepthType = "ThroughAll"
hole2.HoleCutType = "Countersink"
hole2.HoleCutDiameter = 6
hole2.HoleCutCountersinkAngle = 90
hole2.Reversed = True

sketch9 = body.newObject("Sketcher::SketchObject", "Sketch008")
sketch9.AttachmentSupport = (doc.getObject("XZ_Plane"), [""])
sketch9.MapMode = "FlatFace"
sketch9.AttachmentOffset = App.Placement(Vector(0, 0, -3), App.Rotation())
sketch9.addGeometry(Part.Circle(Vector(0, 0, 0), Vector(0, 0, 1), 10.1), False)
sketch9.addGeometry(Part.Circle(Vector(0, 50, 0), Vector(0, 0, 1), 10.1), False)
sketch9.addGeometry(Part.Circle(Vector(0, -50, 0), Vector(0, 0, 1), 10.1), False)
sketch9.addConstraint(Sketcher.Constraint("Coincident", 0, 3, -1, 1))
sketch9.addConstraint(Sketcher.Constraint("Equal", 0, 1))
sketch9.addConstraint(Sketcher.Constraint("Equal", 1, 2))
sketch9.addConstraint(Sketcher.Constraint("Symmetric", 1, 3, 2, 3, -1, 1))
sketch9.addConstraint(Sketcher.Constraint("PointOnObject", 1, 3, -2))
sketch9.addConstraint(Sketcher.Constraint("Diameter", 0, 20.2))
sketch9.addConstraint(Sketcher.Constraint("DistanceY", -1, 1, 1, 3, 50.0))
pocket4 = body.newObject("PartDesign::Pocket", "Pocket003")
pocket4.Profile = sketch9
pocket4.Type = "ThroughAll"
pocket4.Reversed = True

sketch10 = body.newObject("Sketcher::SketchObject", "Sketch009")
sketch10.AttachmentSupport = (doc.getObject("XZ_Plane"), [""])
sketch10.MapMode = "FlatFace"
sketch10.addGeometry(Part.Circle(Vector(-32, 15, 0), Vector(0, 0, 1), 1.5), False)
sketch10.addGeometry(Part.Circle(Vector(-32, 30, 0), Vector(0, 0, 1), 1.5), False)
sketch10.addGeometry(Part.Circle(Vector(-12, 65, 0), Vector(0, 0, 1), 1.5), False)
sketch10.addGeometry(Part.Circle(Vector(-12, 30, 0), Vector(0, 0, 1), 1.5), False)
sketch10.addConstraint(Sketcher.Constraint("Equal", 0, 1))
sketch10.addConstraint(Sketcher.Constraint("Equal", 1, 2))
sketch10.addConstraint(Sketcher.Constraint("Equal", 2, 3))
sketch10.addConstraint(Sketcher.Constraint("Horizontal", 1, 3, 3, 3))
sketch10.addConstraint(Sketcher.Constraint("Vertical", 0, 3, 1, 3))
sketch10.addConstraint(Sketcher.Constraint("Vertical", 2, 3, 3, 3))
sketch10.addConstraint(Sketcher.Constraint("Diameter", 0, 3.0))
sketch10.addConstraint(Sketcher.Constraint("DistanceX", 0, 3, -1, 1, 32.0))
sketch10.addConstraint(Sketcher.Constraint("DistanceY", -1, 1, 0, 3, 15.0))
sketch10.addConstraint(Sketcher.Constraint("DistanceY", -1, 1, 1, 3, 30.0))
sketch10.addConstraint(Sketcher.Constraint("DistanceX", 2, 3, -1, 1, 12.0))
sketch10.addConstraint(Sketcher.Constraint("DistanceY", -1, 1, 2, 3, 65.0))
pocket5 = body.newObject("PartDesign::Pocket", "Pocket004")
pocket5.Profile = sketch10
pocket5.Length = 10
doc.recompute()

mirrored4 = body.newObject("PartDesign::Mirrored", "Mirrored003")
mirrored4.Originals = [pocket5]
mirrored4.MirrorPlane = (doc.getObject("YZ_Plane"), [""])
body.Tip = mirrored4
doc.recompute()

mirrored5 = body.newObject("PartDesign::Mirrored", "Mirrored004")
mirrored5.Originals = [pocket5]
mirrored5.MirrorPlane = (doc.getObject("XY_Plane"), [""])
body.Tip = mirrored5

sketch11 = body.newObject("Sketcher::SketchObject", "Sketch010")
sketch11.AttachmentSupport = (doc.getObject("XZ_Plane"), [""])
sketch11.MapMode = "FlatFace"
sketch11.addGeometry(Part.Circle(Vector(32, -15, 0), Vector(0, 0, 1), 1.5), False)
sketch11.addGeometry(Part.Circle(Vector(32, -30, 0), Vector(0, 0, 1), 1.5), False)
sketch11.addGeometry(Part.Circle(Vector(12, -65, 0), Vector(0, 0, 1), 1.5), False)
sketch11.addGeometry(Part.Circle(Vector(12, -30, 0), Vector(0, 0, 1), 1.5), False)
sketch11.addConstraint(Sketcher.Constraint("Equal", 0, 1))
sketch11.addConstraint(Sketcher.Constraint("Equal", 1, 2))
sketch11.addConstraint(Sketcher.Constraint("Equal", 2, 3))
sketch11.addConstraint(Sketcher.Constraint("Horizontal", 1, 3, 3, 3))
sketch11.addConstraint(Sketcher.Constraint("Vertical", 0, 3, 1, 3))
sketch11.addConstraint(Sketcher.Constraint("Vertical", 2, 3, 3, 3))
sketch11.addConstraint(Sketcher.Constraint("Diameter", 0, 3.0))
sketch11.addConstraint(Sketcher.Constraint("DistanceX", -1, 1, 0, 3, 32.0))
sketch11.addConstraint(Sketcher.Constraint("DistanceY", 0, 3, -1, 1, 15.0))
sketch11.addConstraint(Sketcher.Constraint("DistanceY", 1, 3, -1, 1, 30.0))
sketch11.addConstraint(Sketcher.Constraint("DistanceX", -1, 1, 2, 3, 12.0))
sketch11.addConstraint(Sketcher.Constraint("DistanceY", 2, 3, -1, 1, 65.0))
pocket6 = body.newObject("PartDesign::Pocket", "Pocket005")
pocket6.Profile = sketch11
pocket6.Length = 10

doc.recompute()
